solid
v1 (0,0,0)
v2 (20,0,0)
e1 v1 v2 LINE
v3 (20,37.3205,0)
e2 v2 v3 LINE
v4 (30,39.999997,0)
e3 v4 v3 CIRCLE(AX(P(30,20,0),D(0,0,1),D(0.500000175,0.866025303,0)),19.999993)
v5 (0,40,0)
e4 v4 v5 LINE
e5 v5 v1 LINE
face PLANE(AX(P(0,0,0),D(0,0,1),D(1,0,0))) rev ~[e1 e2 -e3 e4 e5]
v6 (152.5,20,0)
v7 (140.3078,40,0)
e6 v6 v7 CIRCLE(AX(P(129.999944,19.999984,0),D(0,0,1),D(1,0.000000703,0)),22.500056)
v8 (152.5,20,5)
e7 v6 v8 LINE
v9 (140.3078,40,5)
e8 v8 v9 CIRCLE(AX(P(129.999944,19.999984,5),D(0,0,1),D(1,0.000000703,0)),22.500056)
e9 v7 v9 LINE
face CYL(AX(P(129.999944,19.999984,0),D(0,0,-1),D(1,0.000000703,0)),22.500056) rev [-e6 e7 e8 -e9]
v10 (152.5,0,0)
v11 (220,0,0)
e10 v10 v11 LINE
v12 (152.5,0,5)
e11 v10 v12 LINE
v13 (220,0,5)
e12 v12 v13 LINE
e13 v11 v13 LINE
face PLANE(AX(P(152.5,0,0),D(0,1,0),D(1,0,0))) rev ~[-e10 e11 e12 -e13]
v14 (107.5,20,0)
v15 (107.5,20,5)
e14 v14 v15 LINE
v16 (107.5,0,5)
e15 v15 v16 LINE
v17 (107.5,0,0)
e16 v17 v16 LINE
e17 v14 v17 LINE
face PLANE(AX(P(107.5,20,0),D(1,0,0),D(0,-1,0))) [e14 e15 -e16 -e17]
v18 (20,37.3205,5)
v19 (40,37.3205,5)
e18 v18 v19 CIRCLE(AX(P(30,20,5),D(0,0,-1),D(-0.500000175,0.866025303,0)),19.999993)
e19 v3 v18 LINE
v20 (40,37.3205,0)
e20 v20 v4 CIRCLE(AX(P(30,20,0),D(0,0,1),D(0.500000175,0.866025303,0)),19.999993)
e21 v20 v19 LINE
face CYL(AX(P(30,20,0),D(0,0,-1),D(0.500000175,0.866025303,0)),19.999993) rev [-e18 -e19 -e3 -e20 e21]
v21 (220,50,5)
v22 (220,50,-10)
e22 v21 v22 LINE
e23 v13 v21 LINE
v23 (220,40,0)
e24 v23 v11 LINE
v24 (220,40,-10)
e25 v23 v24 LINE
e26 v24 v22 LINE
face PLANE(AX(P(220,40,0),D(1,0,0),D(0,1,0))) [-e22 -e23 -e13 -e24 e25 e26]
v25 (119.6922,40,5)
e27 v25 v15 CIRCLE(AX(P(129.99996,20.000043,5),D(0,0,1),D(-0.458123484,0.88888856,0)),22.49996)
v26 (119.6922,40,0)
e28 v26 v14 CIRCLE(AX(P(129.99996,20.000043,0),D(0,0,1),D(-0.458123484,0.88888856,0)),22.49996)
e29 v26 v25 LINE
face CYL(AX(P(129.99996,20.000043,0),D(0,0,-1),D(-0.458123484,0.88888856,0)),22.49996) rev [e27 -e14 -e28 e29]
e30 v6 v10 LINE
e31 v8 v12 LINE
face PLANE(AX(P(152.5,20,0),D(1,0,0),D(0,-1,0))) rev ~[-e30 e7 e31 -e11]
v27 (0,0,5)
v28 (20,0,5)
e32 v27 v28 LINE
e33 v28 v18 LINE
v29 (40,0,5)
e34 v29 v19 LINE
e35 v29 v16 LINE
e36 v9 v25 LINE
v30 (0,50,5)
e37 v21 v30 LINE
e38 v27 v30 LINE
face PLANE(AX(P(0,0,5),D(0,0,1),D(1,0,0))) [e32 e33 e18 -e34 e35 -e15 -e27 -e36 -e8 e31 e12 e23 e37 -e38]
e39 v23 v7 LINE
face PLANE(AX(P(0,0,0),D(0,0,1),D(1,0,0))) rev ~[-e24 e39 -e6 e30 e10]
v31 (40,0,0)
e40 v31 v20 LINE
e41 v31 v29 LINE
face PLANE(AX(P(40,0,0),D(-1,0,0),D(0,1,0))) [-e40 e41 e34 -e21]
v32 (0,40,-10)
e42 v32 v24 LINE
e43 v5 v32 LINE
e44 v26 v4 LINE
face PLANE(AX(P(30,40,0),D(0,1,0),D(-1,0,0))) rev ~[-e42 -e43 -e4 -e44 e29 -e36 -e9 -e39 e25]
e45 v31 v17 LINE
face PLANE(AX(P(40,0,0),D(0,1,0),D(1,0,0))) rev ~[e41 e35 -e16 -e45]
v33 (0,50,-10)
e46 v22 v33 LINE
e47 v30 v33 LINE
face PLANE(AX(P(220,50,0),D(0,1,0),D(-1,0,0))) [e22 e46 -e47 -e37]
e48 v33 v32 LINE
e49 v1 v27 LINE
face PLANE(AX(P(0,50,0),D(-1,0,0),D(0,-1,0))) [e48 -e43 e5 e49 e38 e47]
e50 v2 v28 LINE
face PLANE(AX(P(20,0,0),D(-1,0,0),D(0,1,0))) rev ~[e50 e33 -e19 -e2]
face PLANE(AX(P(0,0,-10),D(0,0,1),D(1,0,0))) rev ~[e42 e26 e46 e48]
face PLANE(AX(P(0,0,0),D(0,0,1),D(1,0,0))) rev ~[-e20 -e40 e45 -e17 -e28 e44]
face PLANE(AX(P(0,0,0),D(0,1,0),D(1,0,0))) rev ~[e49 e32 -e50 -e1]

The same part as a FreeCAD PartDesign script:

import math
import FreeCAD as App
import Part
import Sketcher

V = App.Vector

doc = App.newDocument("Part")
body = doc.addObject("PartDesign::Body", "Body")

sketch1 = doc.addObject("Sketcher::SketchObject", "Sketch")
body.addObject(sketch1)
sketch1.AttachmentSupport = (doc.XY_Plane, [""])
sketch1.MapMode = "FlatFace"
sketch1.addGeometry(Part.LineSegment(V(0, 0, 0), V(20, 0, 0)), False)
sketch1.addGeometry(Part.LineSegment(V(20, 0, 0), V(20, 37, 0)), False)
sketch1.addGeometry(Part.ArcOfCircle(Part.Circle(V(30, 20, 0), V(0, 0, 1), 20), math.radians(60), math.radians(120)), False)
sketch1.addGeometry(Part.LineSegment(V(40, 37, 0), V(40, 0, 0)), False)
sketch1.addGeometry(Part.LineSegment(V(40, 0, 0), V(108, 0, 0)), False)
sketch1.addGeometry(Part.LineSegment(V(108, 0, 0), V(108, 20, 0)), False)
sketch1.addGeometry(Part.ArcOfCircle(Part.Circle(V(130, 20, 0), V(0, 0, 1), 22), math.radians(117), math.radians(180)), False)
sketch1.addGeometry(Part.LineSegment(V(120, 40, 0), V(140, 40, 0)), False)
sketch1.addGeometry(Part.ArcOfCircle(Part.Circle(V(130, 20, 0), V(0, 0, 1), 23), math.radians(0), math.radians(63)), False)
sketch1.addGeometry(Part.LineSegment(V(152, 20, 0), V(152, 0, 0)), False)
sketch1.addGeometry(Part.LineSegment(V(152, 0, 0), V(220, 0, 0)), False)
sketch1.addGeometry(Part.LineSegment(V(220, 0, 0), V(220, 50, 0)), False)
sketch1.addGeometry(Part.LineSegment(V(220, 50, 0), V(0, 50, 0)), False)
sketch1.addGeometry(Part.LineSegment(V(0, 50, 0), V(0, 0, 0)), False)
sketch1.addConstraint(Sketcher.Constraint("Coincident", 0, 2, 1, 1))
sketch1.addConstraint(Sketcher.Constraint("Coincident", 1, 2, 2, 2))
sketch1.addConstraint(Sketcher.Constraint("Coincident", 2, 1, 3, 1))
sketch1.addConstraint(Sketcher.Constraint("Coincident", 3, 2, 4, 1))
sketch1.addConstraint(Sketcher.Constraint("Coincident", 4, 2, 5, 1))
sketch1.addConstraint(Sketcher.Constraint("Tangent", 5, 2, 6, 2))
sketch1.addConstraint(Sketcher.Constraint("Coincident", 6, 1, 7, 1))
sketch1.addConstraint(Sketcher.Constraint("Coincident", 7, 2, 8, 2))
sketch1.addConstraint(Sketcher.Constraint("Tangent", 8, 1, 9, 1))
sketch1.addConstraint(Sketcher.Constraint("Coincident", 9, 2, 10, 1))
sketch1.addConstraint(Sketcher.Constraint("Coincident", 10, 2, 11, 1))
sketch1.addConstraint(Sketcher.Constraint("Coincident", 11, 2, 12, 1))
sketch1.addConstraint(Sketcher.Constraint("Coincident", 12, 2, 13, 1))
sketch1.addConstraint(Sketcher.Constraint("Coincident", 13, 2, 0, 1))
sketch1.addConstraint(Sketcher.Constraint("Horizontal", 0))
sketch1.addConstraint(Sketcher.Constraint("Vertical", 1))
sketch1.addConstraint(Sketcher.Constraint("Vertical", 3))
sketch1.addConstraint(Sketcher.Constraint("Horizontal", 4))
sketch1.addConstraint(Sketcher.Constraint("Vertical", 5))
sketch1.addConstraint(Sketcher.Constraint("Horizontal", 7))
sketch1.addConstraint(Sketcher.Constraint("Vertical", 9))
sketch1.addConstraint(Sketcher.Constraint("Horizontal", 10))
sketch1.addConstraint(Sketcher.Constraint("Vertical", 11))
sketch1.addConstraint(Sketcher.Constraint("Horizontal", 12))
sketch1.addConstraint(Sketcher.Constraint("Vertical", 13))
sketch1.addConstraint(Sketcher.Constraint("Coincident", 13, 2, -1, 1))
sketch1.addConstraint(Sketcher.Constraint("Coincident", 8, 3, 6, 3))
sketch1.addConstraint(Sketcher.Constraint("Equal", 6, 8))
sketch1.addConstraint(Sketcher.Constraint("PointOnObject", 3, 2, -1))
sketch1.addConstraint(Sketcher.Constraint("PointOnObject", 9, 2, -1))
sketch1.addConstraint(Sketcher.Constraint("Horizontal", 2, 3, 6, 3))
sketch1.addConstraint(Sketcher.Constraint("Horizontal", 1, 2, 2, 1))
sketch1.addConstraint(Sketcher.Constraint("Equal", 4, 10))
sketch1.addConstraint(Sketcher.Constraint("Equal", 0, 5))
sketch1.addConstraint(Sketcher.Constraint("Radius", 2, 20.0))
sketch1.addConstraint(Sketcher.Constraint("Radius", 6, 22.5))
sketch1.addConstraint(Sketcher.Constraint("DistanceX", 0, 1, 0, 2, 20.0))
sketch1.addConstraint(Sketcher.Constraint("DistanceX", 12, 2, 12, 1, 220.0))
sketch1.addConstraint(Sketcher.Constraint("DistanceX", -1, 1, 2, 1, 40.0))
sketch1.addConstraint(Sketcher.Constraint("DistanceY", -1, 1, 6, 1, 40.0))
sketch1.addConstraint(Sketcher.Constraint("DistanceY", 7, 2, 11, 2, 10.0))
pad1 = doc.addObject("PartDesign::Pad", "Pad")
body.addObject(pad1)
pad1.Profile = sketch1
pad1.Length = 5

sketch2 = doc.addObject("Sketcher::SketchObject", "Sketch001")
body.addObject(sketch2)
sketch2.AttachmentSupport = (doc.XY_Plane, [""])
sketch2.MapMode = "FlatFace"
sketch2.addGeometry(Part.LineSegment(V(0, 50, 0), V(0, 40, 0)), False)
sketch2.addGeometry(Part.LineSegment(V(0, 40, 0), V(220, 40, 0)), False)
sketch2.addGeometry(Part.LineSegment(V(220, 40, 0), V(220, 50, 0)), False)
sketch2.addGeometry(Part.LineSegment(V(220, 50, 0), V(0, 50, 0)), False)
sketch2.addConstraint(Sketcher.Constraint("Coincident", 0, 2, 1, 1))
sketch2.addConstraint(Sketcher.Constraint("Coincident", 1, 2, 2, 1))
sketch2.addConstraint(Sketcher.Constraint("Coincident", 2, 2, 3, 1))
sketch2.addConstraint(Sketcher.Constraint("Coincident", 3, 2, 0, 1))
sketch2.addConstraint(Sketcher.Constraint("Vertical", 0))
sketch2.addConstraint(Sketcher.Constraint("Horizontal", 1))
sketch2.addConstraint(Sketcher.Constraint("Vertical", 2))
sketch2.addConstraint(Sketcher.Constraint("Horizontal", 3))
sketch2.addConstraint(Sketcher.Constraint("PointOnObject", 0, 2, -2))
sketch2.addConstraint(Sketcher.Constraint("DistanceX", 1, 1, 1, 2, 220.0))
sketch2.addConstraint(Sketcher.Constraint("DistanceY", 0, 2, 0, 1, 10.0))
sketch2.addConstraint(Sketcher.Constraint("DistanceY", -1, 1, 0, 2, 40.0))
pad2 = doc.addObject("PartDesign::Pad", "Pad001")
body.addObject(pad2)
pad2.Profile = sketch2
pad2.Length = 10
pad2.Reversed = True

doc.recompute()
